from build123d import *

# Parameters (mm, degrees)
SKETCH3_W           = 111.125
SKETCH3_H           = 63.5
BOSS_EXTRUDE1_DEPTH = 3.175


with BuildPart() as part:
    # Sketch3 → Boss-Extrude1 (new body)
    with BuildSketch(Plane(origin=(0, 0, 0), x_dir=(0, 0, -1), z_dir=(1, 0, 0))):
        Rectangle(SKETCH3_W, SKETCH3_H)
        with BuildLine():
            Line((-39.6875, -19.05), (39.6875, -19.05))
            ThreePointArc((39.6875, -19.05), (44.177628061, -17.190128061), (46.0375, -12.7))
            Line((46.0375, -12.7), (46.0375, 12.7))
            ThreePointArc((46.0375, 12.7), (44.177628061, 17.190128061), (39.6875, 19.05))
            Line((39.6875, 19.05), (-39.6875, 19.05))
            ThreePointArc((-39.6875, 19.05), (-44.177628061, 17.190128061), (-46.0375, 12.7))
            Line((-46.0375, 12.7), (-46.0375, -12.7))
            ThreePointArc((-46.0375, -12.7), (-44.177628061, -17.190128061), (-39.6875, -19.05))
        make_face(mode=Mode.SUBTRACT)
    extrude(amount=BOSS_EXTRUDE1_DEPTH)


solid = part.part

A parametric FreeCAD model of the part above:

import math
import FreeCAD as App
import Part
import Sketcher
from FreeCAD import Vector
Q = App.Units.Quantity

doc = App.newDocument("Part")
body = doc.addObject("PartDesign::Body", "Body")

# Sketch on YZ plane
sketch1 = doc.addObject("Sketcher::SketchObject", "Sketch")
body.addObject(sketch1)
sketch1.AttachmentSupport = (doc.YZ_Plane, [""])
sketch1.MapMode = "FlatFace"
sketch1.addGeometry([
    Part.LineSegment(Vector(31.75, 55.5625, 0), Vector(-31.75, 55.5625, 0)),  # 0
    Part.LineSegment(Vector(-31.75, 55.5625, 0), Vector(-31.75, -55.5625, 0)),  # 1
    Part.LineSegment(Vector(-31.75, -55.5625, 0), Vector(31.75, -55.5625, 0)),  # 2
    Part.LineSegment(Vector(31.75, -55.5625, 0), Vector(31.75, 55.5625, 0)),  # 3
    Part.LineSegment(Vector(-19.05, -39.6875, 0), Vector(-19.05, 39.6875, 0)),  # 4
    Part.ArcOfCircle(Part.Circle(Vector(-12.7, 39.6875, 0), Vector(0, 0, 1), 6.35), math.radians(90), math.radians(180)),  # 5
    Part.LineSegment(Vector(-12.7, 46.0375, 0), Vector(12.7, 46.0375, 0)),  # 6
    Part.ArcOfCircle(Part.Circle(Vector(12.7, 39.6875, 0), Vector(0, 0, 1), 6.35), math.radians(0), math.radians(90)),  # 7
    Part.LineSegment(Vector(19.05, 39.6875, 0), Vector(19.05, -39.6875, 0)),  # 8
    Part.ArcOfCircle(Part.Circle(Vector(12.7, -39.6875, 0), Vector(0, 0, 1), 6.35), math.radians(-90), math.radians(0)),  # 9
    Part.LineSegment(Vector(12.7, -46.0375, 0), Vector(-12.7, -46.0375, 0)),  # 10
    Part.ArcOfCircle(Part.Circle(Vector(-12.7, -39.6875, 0), Vector(0, 0, 1), 6.35), math.radians(180), math.radians(270)),  # 11
], False)
sketch1.addConstraint([
    Sketcher.Constraint("Coincident", 0, 2, 1, 1),
    Sketcher.Constraint("Coincident", 1, 2, 2, 1),
    Sketcher.Constraint("Coincident", 2, 2, 3, 1),
    Sketcher.Constraint("Coincident", 3, 2, 0, 1),
    Sketcher.Constraint("Tangent", 4, 2, 5, 2),
    Sketcher.Constraint("Tangent", 5, 1, 6, 1),
    Sketcher.Constraint("Tangent", 6, 2, 7, 2),
    Sketcher.Constraint("Tangent", 7, 1, 8, 1),
    Sketcher.Constraint("Tangent", 8, 2, 9, 2),
    Sketcher.Constraint("Tangent", 9, 1, 10, 1),
    Sketcher.Constraint("Tangent", 10, 2, 11, 2),
    Sketcher.Constraint("Tangent", 11, 1, 4, 1),
    Sketcher.Constraint("Horizontal", 0),
    Sketcher.Constraint("Vertical", 1),
    Sketcher.Constraint("Horizontal", 2),
    Sketcher.Constraint("Vertical", 3),
    Sketcher.Constraint("Vertical", 4),
    Sketcher.Constraint("Horizontal", 6),
    Sketcher.Constraint("Vertical", 8),
    Sketcher.Constraint("Horizontal", 10),
    Sketcher.Constraint("Equal", 5, 7),
    Sketcher.Constraint("Equal", 7, 9),
    Sketcher.Constraint("Equal", 9, 11),
    Sketcher.Constraint("Symmetric", 5, 3, 9, 3, -1, 1),
    Sketcher.Constraint("Symmetric", 0, 2, 2, 2, -1, 1),
    Sketcher.Constraint("DistanceX", 6, 1, 6, 2, Q("1 in")),
    Sketcher.Constraint("Radius", 5, Q("0.25 in")),
    Sketcher.Constraint("DistanceX", 0, 2, 0, 1, Q("2.5 in")),
    Sketcher.Constraint("DistanceY", 1, 2, 1, 1, Q("4.375 in")),
    Sketcher.Constraint("DistanceY", 4, 1, 4, 2, Q("3.125 in")),
])
pad1 = doc.addObject("PartDesign::Pad", "Pad")
body.addObject(pad1)
pad1.Profile = sketch1
pad1.Length = Q("0.125 in")

doc.recompute()
